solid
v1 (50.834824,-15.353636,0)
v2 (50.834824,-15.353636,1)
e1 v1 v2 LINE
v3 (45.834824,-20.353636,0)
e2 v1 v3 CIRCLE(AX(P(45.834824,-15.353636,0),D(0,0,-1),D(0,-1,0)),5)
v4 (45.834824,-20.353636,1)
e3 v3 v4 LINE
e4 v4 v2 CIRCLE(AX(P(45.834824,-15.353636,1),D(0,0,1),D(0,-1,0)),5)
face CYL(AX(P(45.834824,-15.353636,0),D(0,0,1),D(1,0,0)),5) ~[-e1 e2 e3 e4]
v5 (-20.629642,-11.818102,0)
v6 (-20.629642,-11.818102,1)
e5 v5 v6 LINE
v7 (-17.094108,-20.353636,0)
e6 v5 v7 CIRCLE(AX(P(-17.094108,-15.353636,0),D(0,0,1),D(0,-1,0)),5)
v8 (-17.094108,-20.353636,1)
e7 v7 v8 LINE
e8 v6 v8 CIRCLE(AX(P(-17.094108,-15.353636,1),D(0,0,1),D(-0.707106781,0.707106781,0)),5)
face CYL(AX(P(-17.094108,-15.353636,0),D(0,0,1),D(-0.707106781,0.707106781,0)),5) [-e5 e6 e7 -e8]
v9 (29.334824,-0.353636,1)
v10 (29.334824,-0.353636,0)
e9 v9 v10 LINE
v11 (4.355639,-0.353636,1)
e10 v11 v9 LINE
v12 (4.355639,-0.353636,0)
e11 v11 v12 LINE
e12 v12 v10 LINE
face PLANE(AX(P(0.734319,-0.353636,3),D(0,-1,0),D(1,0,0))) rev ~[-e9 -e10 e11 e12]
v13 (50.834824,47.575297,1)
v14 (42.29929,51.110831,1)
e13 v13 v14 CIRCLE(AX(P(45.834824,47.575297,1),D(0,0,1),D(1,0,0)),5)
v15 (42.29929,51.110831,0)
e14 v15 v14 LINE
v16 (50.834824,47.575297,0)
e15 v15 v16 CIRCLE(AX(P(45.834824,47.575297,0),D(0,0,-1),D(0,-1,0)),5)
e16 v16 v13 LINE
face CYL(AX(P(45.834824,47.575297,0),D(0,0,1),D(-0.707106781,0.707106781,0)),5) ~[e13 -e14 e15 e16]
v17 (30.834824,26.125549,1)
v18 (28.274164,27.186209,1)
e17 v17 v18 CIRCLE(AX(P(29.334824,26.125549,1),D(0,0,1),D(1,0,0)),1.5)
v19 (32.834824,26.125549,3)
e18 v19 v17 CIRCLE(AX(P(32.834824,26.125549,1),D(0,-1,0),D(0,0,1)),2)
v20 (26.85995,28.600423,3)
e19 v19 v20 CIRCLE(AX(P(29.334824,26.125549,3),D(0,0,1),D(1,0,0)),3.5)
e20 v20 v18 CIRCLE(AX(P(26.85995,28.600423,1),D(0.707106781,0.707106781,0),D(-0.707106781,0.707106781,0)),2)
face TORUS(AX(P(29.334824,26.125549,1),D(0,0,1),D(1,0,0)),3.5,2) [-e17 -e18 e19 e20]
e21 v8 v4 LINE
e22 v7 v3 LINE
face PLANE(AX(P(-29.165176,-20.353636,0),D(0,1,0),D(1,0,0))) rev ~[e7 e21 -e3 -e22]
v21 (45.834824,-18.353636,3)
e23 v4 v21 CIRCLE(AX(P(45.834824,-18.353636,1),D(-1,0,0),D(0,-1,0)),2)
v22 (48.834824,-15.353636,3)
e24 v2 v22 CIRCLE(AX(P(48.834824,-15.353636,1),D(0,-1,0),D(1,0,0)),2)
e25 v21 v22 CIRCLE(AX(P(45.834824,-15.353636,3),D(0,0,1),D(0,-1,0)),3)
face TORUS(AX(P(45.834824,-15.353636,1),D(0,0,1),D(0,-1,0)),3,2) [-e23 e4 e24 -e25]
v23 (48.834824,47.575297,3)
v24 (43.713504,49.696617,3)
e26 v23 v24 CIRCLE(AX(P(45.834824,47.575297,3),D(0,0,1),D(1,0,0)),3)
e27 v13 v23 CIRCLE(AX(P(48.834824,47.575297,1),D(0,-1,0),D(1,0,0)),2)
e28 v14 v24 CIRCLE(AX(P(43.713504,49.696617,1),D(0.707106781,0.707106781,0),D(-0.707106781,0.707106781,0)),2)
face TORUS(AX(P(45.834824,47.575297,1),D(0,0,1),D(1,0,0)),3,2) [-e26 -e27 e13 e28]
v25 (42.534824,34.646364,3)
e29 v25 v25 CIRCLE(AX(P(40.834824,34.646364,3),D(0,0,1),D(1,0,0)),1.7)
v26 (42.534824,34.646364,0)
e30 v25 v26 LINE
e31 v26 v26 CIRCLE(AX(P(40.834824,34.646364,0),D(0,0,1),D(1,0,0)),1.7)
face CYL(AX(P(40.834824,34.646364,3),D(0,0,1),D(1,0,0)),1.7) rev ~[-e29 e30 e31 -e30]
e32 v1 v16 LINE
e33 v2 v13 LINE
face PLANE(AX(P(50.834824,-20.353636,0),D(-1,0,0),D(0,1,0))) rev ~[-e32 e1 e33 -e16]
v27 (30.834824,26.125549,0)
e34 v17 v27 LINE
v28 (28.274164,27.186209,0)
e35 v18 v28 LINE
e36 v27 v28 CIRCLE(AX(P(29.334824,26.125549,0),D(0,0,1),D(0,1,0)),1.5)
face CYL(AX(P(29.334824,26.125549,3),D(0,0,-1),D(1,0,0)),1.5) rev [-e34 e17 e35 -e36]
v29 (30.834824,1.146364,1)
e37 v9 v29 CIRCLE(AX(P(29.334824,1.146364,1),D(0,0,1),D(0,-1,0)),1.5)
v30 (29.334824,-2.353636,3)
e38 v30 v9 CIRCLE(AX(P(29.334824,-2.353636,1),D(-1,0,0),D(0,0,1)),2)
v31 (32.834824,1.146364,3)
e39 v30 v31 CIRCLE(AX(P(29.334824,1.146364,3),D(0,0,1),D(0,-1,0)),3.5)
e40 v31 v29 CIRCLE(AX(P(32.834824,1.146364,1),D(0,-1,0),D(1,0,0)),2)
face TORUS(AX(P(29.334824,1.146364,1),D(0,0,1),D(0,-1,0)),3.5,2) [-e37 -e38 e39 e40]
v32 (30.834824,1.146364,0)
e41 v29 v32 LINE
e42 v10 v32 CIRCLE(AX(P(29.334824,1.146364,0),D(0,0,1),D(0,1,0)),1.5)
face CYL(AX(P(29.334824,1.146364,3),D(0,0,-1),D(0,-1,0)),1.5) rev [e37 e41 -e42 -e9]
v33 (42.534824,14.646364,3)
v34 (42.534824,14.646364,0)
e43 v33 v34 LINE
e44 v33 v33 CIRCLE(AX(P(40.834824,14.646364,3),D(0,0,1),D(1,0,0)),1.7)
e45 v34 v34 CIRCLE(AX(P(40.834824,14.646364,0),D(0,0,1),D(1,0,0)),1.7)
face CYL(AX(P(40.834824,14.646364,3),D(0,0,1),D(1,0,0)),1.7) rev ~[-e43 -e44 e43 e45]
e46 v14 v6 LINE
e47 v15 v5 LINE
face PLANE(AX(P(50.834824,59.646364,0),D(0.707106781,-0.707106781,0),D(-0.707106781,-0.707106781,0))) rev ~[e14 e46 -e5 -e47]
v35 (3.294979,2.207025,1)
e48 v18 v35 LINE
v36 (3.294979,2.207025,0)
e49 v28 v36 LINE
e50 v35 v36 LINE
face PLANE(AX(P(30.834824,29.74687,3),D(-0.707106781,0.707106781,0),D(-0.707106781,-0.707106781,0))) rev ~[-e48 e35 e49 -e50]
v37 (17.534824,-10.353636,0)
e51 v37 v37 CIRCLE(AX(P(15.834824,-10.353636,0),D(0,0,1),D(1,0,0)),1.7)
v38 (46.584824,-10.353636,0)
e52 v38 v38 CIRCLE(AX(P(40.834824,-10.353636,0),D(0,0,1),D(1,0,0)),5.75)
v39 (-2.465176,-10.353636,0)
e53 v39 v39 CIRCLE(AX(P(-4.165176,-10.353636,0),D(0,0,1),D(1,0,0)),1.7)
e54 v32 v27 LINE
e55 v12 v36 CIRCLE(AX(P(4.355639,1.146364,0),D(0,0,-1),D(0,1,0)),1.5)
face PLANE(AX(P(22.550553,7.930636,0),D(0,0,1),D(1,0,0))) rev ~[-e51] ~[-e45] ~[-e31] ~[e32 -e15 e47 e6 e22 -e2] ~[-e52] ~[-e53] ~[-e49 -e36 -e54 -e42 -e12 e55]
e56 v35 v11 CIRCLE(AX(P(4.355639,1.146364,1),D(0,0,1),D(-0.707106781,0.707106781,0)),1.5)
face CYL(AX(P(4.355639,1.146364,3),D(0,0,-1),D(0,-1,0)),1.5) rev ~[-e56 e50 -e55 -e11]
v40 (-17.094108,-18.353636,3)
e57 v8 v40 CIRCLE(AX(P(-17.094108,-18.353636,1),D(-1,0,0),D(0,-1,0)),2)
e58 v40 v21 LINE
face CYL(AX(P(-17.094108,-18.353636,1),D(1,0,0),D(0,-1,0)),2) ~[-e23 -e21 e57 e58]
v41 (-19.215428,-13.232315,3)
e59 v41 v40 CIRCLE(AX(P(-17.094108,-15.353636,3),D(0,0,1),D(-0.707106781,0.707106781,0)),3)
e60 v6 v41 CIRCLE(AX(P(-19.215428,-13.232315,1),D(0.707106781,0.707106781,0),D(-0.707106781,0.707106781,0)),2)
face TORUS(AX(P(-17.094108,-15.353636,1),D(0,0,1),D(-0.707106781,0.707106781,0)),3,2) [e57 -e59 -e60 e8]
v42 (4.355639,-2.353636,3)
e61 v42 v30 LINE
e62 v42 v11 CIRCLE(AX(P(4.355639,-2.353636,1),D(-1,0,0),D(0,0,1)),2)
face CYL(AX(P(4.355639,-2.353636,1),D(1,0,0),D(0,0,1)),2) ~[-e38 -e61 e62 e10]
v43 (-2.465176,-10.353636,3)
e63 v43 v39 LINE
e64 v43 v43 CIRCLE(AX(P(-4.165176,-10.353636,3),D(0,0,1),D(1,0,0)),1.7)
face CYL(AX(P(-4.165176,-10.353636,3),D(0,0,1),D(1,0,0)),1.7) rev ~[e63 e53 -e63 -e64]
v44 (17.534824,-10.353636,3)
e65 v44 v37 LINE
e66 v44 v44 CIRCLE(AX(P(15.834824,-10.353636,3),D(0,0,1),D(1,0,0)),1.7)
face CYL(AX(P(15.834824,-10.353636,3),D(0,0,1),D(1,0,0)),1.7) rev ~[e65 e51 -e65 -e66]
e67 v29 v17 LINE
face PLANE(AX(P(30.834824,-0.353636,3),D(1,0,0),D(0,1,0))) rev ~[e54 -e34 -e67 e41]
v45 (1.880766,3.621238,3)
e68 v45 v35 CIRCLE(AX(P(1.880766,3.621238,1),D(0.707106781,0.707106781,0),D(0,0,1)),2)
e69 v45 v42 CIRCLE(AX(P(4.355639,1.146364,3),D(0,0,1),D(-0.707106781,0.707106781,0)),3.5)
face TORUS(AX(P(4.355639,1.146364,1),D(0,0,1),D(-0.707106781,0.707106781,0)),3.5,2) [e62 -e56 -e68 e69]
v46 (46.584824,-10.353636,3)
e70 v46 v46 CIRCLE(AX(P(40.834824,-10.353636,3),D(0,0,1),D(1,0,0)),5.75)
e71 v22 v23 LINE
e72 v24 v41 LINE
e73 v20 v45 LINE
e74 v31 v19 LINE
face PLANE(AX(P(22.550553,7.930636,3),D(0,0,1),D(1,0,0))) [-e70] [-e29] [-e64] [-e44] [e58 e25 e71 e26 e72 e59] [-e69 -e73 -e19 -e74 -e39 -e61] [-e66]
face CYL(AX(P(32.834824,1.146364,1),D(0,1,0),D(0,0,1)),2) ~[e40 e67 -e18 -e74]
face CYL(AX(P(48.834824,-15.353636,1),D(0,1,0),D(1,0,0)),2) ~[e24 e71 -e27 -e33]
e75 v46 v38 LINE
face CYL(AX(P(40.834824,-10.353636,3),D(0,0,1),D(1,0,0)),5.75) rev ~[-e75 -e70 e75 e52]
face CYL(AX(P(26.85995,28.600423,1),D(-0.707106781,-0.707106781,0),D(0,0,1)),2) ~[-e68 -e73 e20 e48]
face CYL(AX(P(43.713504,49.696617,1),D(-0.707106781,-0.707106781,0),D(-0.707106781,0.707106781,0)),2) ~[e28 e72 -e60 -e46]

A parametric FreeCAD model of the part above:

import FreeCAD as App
import Part
import Sketcher
Q = App.Units.Quantity


def edges_at(feature, points):
    """Names of the edges that pass closest to the given points."""
    edges = feature.Shape.Edges
    near = lambda p: min(range(len(edges)), key=lambda i: edges[i].distToShape(Part.Vertex(*p))[0])
    return sorted({f"Edge{near(p) + 1}" for p in points})


def add_polygon(sketch, points):
    """Adds a closed chain of lines whose ends are joined by coincident constraints."""
    first, n = sketch.GeometryCount, len(points)
    for a, b in zip(points, points[1:] + points[:1]):
        sketch.addGeometry(Part.LineSegment(App.Vector(*a, 0), App.Vector(*b, 0)), False)
    for i in range(n):
        sketch.addConstraint(Sketcher.Constraint("Coincident", first + i, 2, first + (i + 1) % n, 1))

doc = App.newDocument("Part")
body = doc.addObject("PartDesign::Body", "Body")

# Sketch on XY plane
sketch1 = body.newObject("Sketcher::SketchObject", "Sketch")
sketch1.AttachmentSupport = (doc.getObject("XY_Plane"), [""])
sketch1.MapMode = "FlatFace"
add_polygon(sketch1, [(51, 60), (-29, -20), (51, -20)])  # lines 0-2
sketch1.addConstraint(Sketcher.Constraint("Horizontal", 1))
sketch1.addConstraint(Sketcher.Constraint("Vertical", 2))
sketch1.addConstraint(Sketcher.Constraint("Equal", 1, 2))
sketch1.addConstraint(Sketcher.Constraint("DistanceX", 1, 1, 1, 2, Q("80 mm")))
sketch1.addConstraint(Sketcher.Constraint("DistanceX", 0, 2, -1, 1, Q("29.165176 mm")))
sketch1.addConstraint(Sketcher.Constraint("DistanceY", 0, 2, -1, 1, Q("20.353636 mm")))
pad1 = body.newObject("PartDesign::Pad", "Pad")
pad1.Profile = sketch1
pad1.Length = 3

# Sketch on XY plane
sketch2 = body.newObject("Sketcher::SketchObject", "Sketch001")
sketch2.AttachmentSupport = (doc.getObject("XY_Plane"), [""])
sketch2.MapMode = "FlatFace"
sketch2.AttachmentOffset = App.Placement(App.Vector(0, 0, 3), App.Rotation())
add_polygon(sketch2, [(0.7, -0.4), (30.8, -0.4), (30.8, 29.7)])  # lines 0-2
sketch2.addGeometry(Part.Circle(App.Vector(40.8, -10.4, 0), App.Vector(0, 0, 1), 5.8), False)  # 3
sketch2.addGeometry(Part.Circle(App.Vector(15.8, -10.4, 0), App.Vector(0, 0, 1), 1.7), False)  # 4
sketch2.addGeometry(Part.Circle(App.Vector(-4.2, -10.4, 0), App.Vector(0, 0, 1), 1.7), False)  # 5
sketch2.addGeometry(Part.Circle(App.Vector(40.8, 14.6, 0), App.Vector(0, 0, 1), 1.7), False)  # 6
sketch2.addGeometry(Part.Circle(App.Vector(40.8, 34.6, 0), App.Vector(0, 0, 1), 1.7), False)  # 7
sketch2.addConstraint(Sketcher.Constraint("Horizontal", 0))
sketch2.addConstraint(Sketcher.Constraint("Vertical", 1))
sketch2.addConstraint(Sketcher.Constraint("Equal", 4, 5))
sketch2.addConstraint(Sketcher.Constraint("Equal", 5, 6))
sketch2.addConstraint(Sketcher.Constraint("Equal", 6, 7))
sketch2.addConstraint(Sketcher.Constraint("Horizontal", 3, 3, 4, 3))
sketch2.addConstraint(Sketcher.Constraint("Horizontal", 4, 3, 5, 3))
sketch2.addConstraint(Sketcher.Constraint("Vertical", 3, 3, 6, 3))
sketch2.addConstraint(Sketcher.Constraint("Vertical", 6, 3, 7, 3))
sketch2.addConstraint(Sketcher.Constraint("Equal", 0, 1))
sketch2.addConstraint(Sketcher.Constraint("Diameter", 3, Q("11.5 mm")))
sketch2.addConstraint(Sketcher.Constraint("Diameter", 4, Q("3.4 mm")))
sketch2.addConstraint(Sketcher.Constraint("DistanceX", 4, 3, 3, 3, Q("25 mm")))
sketch2.addConstraint(Sketcher.Constraint("DistanceX", 5, 3, 4, 3, Q("20 mm")))
sketch2.addConstraint(Sketcher.Constraint("DistanceY", 3, 3, 6, 3, Q("25 mm")))
sketch2.addConstraint(Sketcher.Constraint("DistanceY", 6, 3, 7, 3, Q("20 mm")))
sketch2.addConstraint(Sketcher.Constraint("DistanceX", 0, 2, 3, 3, Q("10 mm")))
sketch2.addConstraint(Sketcher.Constraint("DistanceY", 3, 3, 0, 2, Q("10 mm")))
sketch2.addConstraint(Sketcher.Constraint("DistanceX", 0, 1, 0, 2, Q("30.100505 mm")))
sketch2.addConstraint(Sketcher.Constraint("DistanceY", -1, 1, 1, 2, Q("29.74687 mm")))
sketch2.addConstraint(Sketcher.Constraint("DistanceX", -1, 1, 2, 2, Q("0.734319 mm")))
pocket1 = body.newObject("PartDesign::Pocket", "Pocket")
pocket1.Profile = sketch2
pocket1.Type = "ThroughAll"
doc.recompute()

fillet = body.newObject("PartDesign::Fillet", "Fillet")
fillet.Base = (pocket1, edges_at(pocket1, [(0.734, -0.354, 1.5), (30.835, -0.354, 1.5), (30.835, 29.747, 1.5)]))
fillet.Radius = 1.5
doc.recompute()

fillet2 = body.newObject("PartDesign::Fillet", "Fillet001")
fillet2.Base = (fillet, edges_at(fillet, [(-29.165, -20.354, 1.5), (50.835, -20.354, 1.5), (50.835, 59.646, 1.5)]))
fillet2.Radius = 5
doc.recompute()

fillet3 = body.newObject("PartDesign::Fillet", "Fillet002")
fillet3.Base = (fillet2, edges_at(fillet2, [
    (14.37, -20.354, 3),
    (49.37, -18.889, 3),
    (50.835, 16.111, 3),
    (-21.714, -17.267, 3),
    (10.835, 19.646, 3),
    (47.748, 52.195, 3),
]))
fillet3.Radius = 2
doc.recompute()

fillet4 = body.newObject("PartDesign::Fillet", "Fillet003")
fillet4.Base = (fillet3, edges_at(fillet3, [
    (16.845, -0.354, 3),
    (30.835, 13.636, 3),
    (15.785, 14.697, 3),
    (30.395, 0.086, 3),
    (2.97, 0.572, 3),
    (29.909, 27.511, 3),
]))
fillet4.Radius = 2

doc.recompute()
